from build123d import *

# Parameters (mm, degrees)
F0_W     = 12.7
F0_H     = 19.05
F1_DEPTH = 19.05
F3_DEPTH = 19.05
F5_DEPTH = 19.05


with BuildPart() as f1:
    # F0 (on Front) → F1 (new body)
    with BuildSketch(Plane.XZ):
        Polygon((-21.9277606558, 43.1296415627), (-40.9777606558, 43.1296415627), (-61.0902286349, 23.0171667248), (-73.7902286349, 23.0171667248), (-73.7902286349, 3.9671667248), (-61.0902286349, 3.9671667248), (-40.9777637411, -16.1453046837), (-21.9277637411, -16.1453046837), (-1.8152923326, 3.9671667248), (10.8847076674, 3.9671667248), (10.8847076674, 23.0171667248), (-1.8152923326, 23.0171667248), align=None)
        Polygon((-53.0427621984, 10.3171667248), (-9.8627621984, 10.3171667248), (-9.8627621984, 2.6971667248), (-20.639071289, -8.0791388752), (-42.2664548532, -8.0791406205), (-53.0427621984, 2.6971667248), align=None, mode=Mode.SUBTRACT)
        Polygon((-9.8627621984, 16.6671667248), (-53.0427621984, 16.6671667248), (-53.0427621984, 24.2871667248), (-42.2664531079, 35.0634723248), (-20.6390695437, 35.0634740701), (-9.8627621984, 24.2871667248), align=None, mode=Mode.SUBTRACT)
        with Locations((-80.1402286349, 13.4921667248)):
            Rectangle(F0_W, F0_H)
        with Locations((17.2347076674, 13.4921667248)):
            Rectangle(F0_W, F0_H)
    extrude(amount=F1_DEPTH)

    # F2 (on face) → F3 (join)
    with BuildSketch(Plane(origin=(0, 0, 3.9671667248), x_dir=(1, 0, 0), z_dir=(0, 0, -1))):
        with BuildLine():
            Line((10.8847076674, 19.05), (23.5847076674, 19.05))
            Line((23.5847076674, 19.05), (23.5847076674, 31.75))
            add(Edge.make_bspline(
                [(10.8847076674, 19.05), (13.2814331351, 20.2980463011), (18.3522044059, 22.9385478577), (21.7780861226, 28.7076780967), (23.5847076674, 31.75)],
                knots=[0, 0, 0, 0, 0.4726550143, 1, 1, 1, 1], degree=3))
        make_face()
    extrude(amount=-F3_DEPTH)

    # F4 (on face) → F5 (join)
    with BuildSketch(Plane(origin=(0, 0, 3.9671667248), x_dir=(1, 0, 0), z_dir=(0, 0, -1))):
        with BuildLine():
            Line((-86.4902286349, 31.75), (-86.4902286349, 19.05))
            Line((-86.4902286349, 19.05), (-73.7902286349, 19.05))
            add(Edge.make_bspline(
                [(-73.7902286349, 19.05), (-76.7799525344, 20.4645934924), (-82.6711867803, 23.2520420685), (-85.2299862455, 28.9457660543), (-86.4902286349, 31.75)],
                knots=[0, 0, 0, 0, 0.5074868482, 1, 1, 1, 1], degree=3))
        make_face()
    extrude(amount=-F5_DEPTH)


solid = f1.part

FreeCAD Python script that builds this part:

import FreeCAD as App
import Part
import Sketcher

V = App.Vector
Q = App.Units.Quantity


def add_polygon(sketch, points):
    """Adds a closed chain of lines whose ends are joined by coincident constraints."""
    first, n = sketch.GeometryCount, len(points)
    for a, b in zip(points, points[1:] + points[:1]):
        sketch.addGeometry(Part.LineSegment(App.Vector(*a, 0), App.Vector(*b, 0)), False)
    for i in range(n):
        sketch.addConstraint(Sketcher.Constraint("Coincident", first + i, 2, first + (i + 1) % n, 1))

doc = App.newDocument("Part")
params = doc.addObject("Spreadsheet::Sheet", "Params")
for row, (alias, value) in enumerate([
    ("sketch1_width", "1 in"),
    ("sketch1_width2", "1.7 in"),
    ("sketch1_height", "0.3 in"),
    ("sketch1_length", "0.6 in"),
    ("sketch1_width3", "0.75 in"),
    ("pad1_length", "0.75 in"),
    ("pad2_length", "0.75 in"),
    ("pad3_length", "0.75 in"),
], start=1):
    params.set(f"A{row}", alias)
    params.set(f"B{row}", "=" + value)
    params.setAlias(f"B{row}", alias)

body = doc.addObject("PartDesign::Body", "Body")

# Sketch on XZ plane
sketch1 = body.newObject("Sketcher::SketchObject", "Sketch")
sketch1.AttachmentSupport = (doc.getObject("XZ_Plane"), [""])
sketch1.MapMode = "FlatFace"
add_polygon(sketch1, [(-21.927761, 43.129642), (-40.977761, 43.129642), (-61.090229, 23.017167), (-86.490229, 23.017167), (-86.490229, 3.967167), (-61.090229, 3.967167), (-40.977764, -16.145305), (-21.927764, -16.145305), (-1.815292, 3.967167), (23.584708, 3.967167), (23.584708, 23.017167), (-1.815292, 23.017167)])  # lines 0-11
add_polygon(sketch1, [(-53.042762, 2.697167), (-53.042762, 10.317167), (-9.862762, 10.317167), (-9.862762, 2.697167), (-20.639071, -8.079139), (-42.266455, -8.079141)])  # lines 12-17
add_polygon(sketch1, [(-9.862762, 24.287167), (-9.862762, 16.667167), (-53.042762, 16.667167), (-53.042762, 24.287167), (-42.266453, 35.063472), (-20.63907, 35.063474)])  # lines 18-23
sketch1.addConstraint(Sketcher.Constraint("Horizontal", 0))
sketch1.addConstraint(Sketcher.Constraint("Horizontal", 2))
sketch1.addConstraint(Sketcher.Constraint("Vertical", 3))
sketch1.addConstraint(Sketcher.Constraint("Horizontal", 4))
sketch1.addConstraint(Sketcher.Constraint("Horizontal", 6))
sketch1.addConstraint(Sketcher.Constraint("Horizontal", 8))
sketch1.addConstraint(Sketcher.Constraint("Vertical", 9))
sketch1.addConstraint(Sketcher.Constraint("Horizontal", 10))
sketch1.addConstraint(Sketcher.Constraint("Vertical", 12))
sketch1.addConstraint(Sketcher.Constraint("Horizontal", 13))
sketch1.addConstraint(Sketcher.Constraint("Vertical", 14))
sketch1.addConstraint(Sketcher.Constraint("Horizontal", 16))
sketch1.addConstraint(Sketcher.Constraint("Vertical", 18))
sketch1.addConstraint(Sketcher.Constraint("Horizontal", 19))
sketch1.addConstraint(Sketcher.Constraint("Vertical", 20))
sketch1.addConstraint(Sketcher.Constraint("Horizontal", 22))
sketch1.addConstraint(Sketcher.Constraint("Perpendicular", 1, 5))
sketch1.addConstraint(Sketcher.Constraint("Perpendicular", 5, 7))
sketch1.addConstraint(Sketcher.Constraint("Perpendicular", 7, 11))
sketch1.addConstraint(Sketcher.Constraint("Perpendicular", 11, 15))
sketch1.addConstraint(Sketcher.Constraint("Perpendicular", 15, 17))
sketch1.addConstraint(Sketcher.Constraint("Perpendicular", 17, 21))
sketch1.addConstraint(Sketcher.Constraint("Perpendicular", 21, 23))
sketch1.addConstraint(Sketcher.Constraint("Horizontal", 4, 2, 7, 2))
sketch1.addConstraint(Sketcher.Constraint("Horizontal", 2, 2, 9, 2))
sketch1.addConstraint(Sketcher.Constraint("Horizontal", 14, 2, 17, 2))
sketch1.addConstraint(Sketcher.Constraint("Horizontal", 20, 2, 23, 2))
sketch1.addConstraint(Sketcher.Constraint("Vertical", 1, 2, 4, 2))
sketch1.addConstraint(Sketcher.Constraint("Vertical", 7, 2, 10, 2))
sketch1.addConstraint(Sketcher.Constraint("Vertical", 14, 2, 18, 2))
sketch1.addConstraint(Sketcher.Constraint("Vertical", 17, 2, 19, 2))
sketch1.addConstraint(Sketcher.Constraint("Vertical", 16, 2, 21, 2))
sketch1.addConstraint(Sketcher.Constraint("Vertical", 15, 2, 22, 2))
sketch1.addConstraint(Sketcher.Constraint("Equal", 0, 6))
sketch1.addConstraint(Sketcher.Constraint("Equal", 4, 8))
sketch1.addConstraint(Sketcher.Constraint("Equal", 6, 3))
sketch1.addConstraint(Sketcher.Constraint("Equal", 14, 18))
sketch1.addConstraint(Sketcher.Constraint("DistanceX", 2, 2, 2, 1, Q("1 in")))
sketch1.addConstraint(Sketcher.Constraint("DistanceX", 13, 1, 13, 2, Q("1.7 in")))
sketch1.addConstraint(Sketcher.Constraint("DistanceY", 12, 1, 12, 2, Q("0.3 in")))
sketch1.addConstraint(Sketcher.Constraint("Distance", 15, Q("0.6 in")))
sketch1.addConstraint(Sketcher.Constraint("DistanceX", 0, 2, 0, 1, Q("0.75 in")))
sketch1.addConstraint(Sketcher.Constraint("DistanceY", 12, 2, 1, 2, Q("0.5 in")))
sketch1.addConstraint(Sketcher.Constraint("DistanceY", 7, 2, 18, 2, Q("0.5 in")))
sketch1.addConstraint(Sketcher.Constraint("DistanceX", 12, 2, 5, 2, Q("0.4749999 in")))
sketch1.addConstraint(Sketcher.Constraint("Distance", 1, Q("28.44333 mm")))
sketch1.addConstraint(Sketcher.Constraint("DistanceX", 0, 2, -1, 1, Q("40.977761 mm")))
sketch1.addConstraint(Sketcher.Constraint("DistanceY", -1, 1, 0, 2, Q("43.129642 mm")))
sketch1.setExpression("Constraints[61]", "Params.sketch1_width")
sketch1.setExpression("Constraints[62]", "Params.sketch1_width2")
sketch1.setExpression("Constraints[63]", "Params.sketch1_height")
sketch1.setExpression("Constraints[64]", "Params.sketch1_length")
sketch1.setExpression("Constraints[65]", "Params.sketch1_width3")
pad1 = body.newObject("PartDesign::Pad", "Pad")
pad1.Profile = sketch1
pad1.setExpression("Length", "Params.pad1_length")

# Sketch on XY plane
sketch2 = body.newObject("Sketcher::SketchObject", "Sketch001")
sketch2.AttachmentSupport = (doc.getObject("XY_Plane"), [""])
sketch2.MapMode = "FlatFace"
sketch2.AttachmentOffset = App.Placement(V(0, 0, 3.967167), App.Rotation())
sketch2.addGeometry(Part.LineSegment(V(10.884708, -19.05, 0), V(23.584708, -19.05, 0)), False)
sketch2.addGeometry(Part.LineSegment(V(23.584708, -19.05, 0), V(23.584708, -31.75, 0)), False)
sketch2.addGeometry(Part.BSplineCurve([V(10.884708, -19.05, 0), V(13.281433, -20.298046, 0), V(18.352204, -22.938548, 0), V(21.778086, -28.707678, 0), V(23.584708, -31.75, 0)], [4, 1, 4], [0, 0.472655014, 1], False, 3, [1, 1, 1, 1, 1], False), False)
sketch2.addConstraint(Sketcher.Constraint("Block", 2))
sketch2.addConstraint(Sketcher.Constraint("Coincident", 0, 2, 1, 1))
sketch2.addConstraint(Sketcher.Constraint("Coincident", 1, 2, 2, 2))
sketch2.addConstraint(Sketcher.Constraint("Coincident", 2, 1, 0, 1))
sketch2.addConstraint(Sketcher.Constraint("Horizontal", 0))
sketch2.addConstraint(Sketcher.Constraint("Vertical", 1))
pad2 = body.newObject("PartDesign::Pad", "Pad001")
pad2.Profile = sketch2
pad2.setExpression("Length", "Params.pad2_length")

# Sketch on XY plane
sketch3 = body.newObject("Sketcher::SketchObject", "Sketch002")
sketch3.AttachmentSupport = (doc.getObject("XY_Plane"), [""])
sketch3.MapMode = "FlatFace"
sketch3.AttachmentOffset = App.Placement(V(0, 0, 3.967167), App.Rotation())
sketch3.addGeometry(Part.LineSegment(V(-86.490229, -31.75, 0), V(-86.490229, -19.05, 0)), False)
sketch3.addGeometry(Part.LineSegment(V(-86.490229, -19.05, 0), V(-73.790229, -19.05, 0)), False)
sketch3.addGeometry(Part.BSplineCurve([V(-73.790229, -19.05, 0), V(-76.779953, -20.464593, 0), V(-82.671187, -23.252042, 0), V(-85.229986, -28.945766, 0), V(-86.490229, -31.75, 0)], [4, 1, 4], [0, 0.507486848, 1], False, 3, [1, 1, 1, 1, 1], False), False)
sketch3.addConstraint(Sketcher.Constraint("Block", 2))
sketch3.addConstraint(Sketcher.Constraint("Coincident", 0, 2, 1, 1))
sketch3.addConstraint(Sketcher.Constraint("Coincident", 1, 2, 2, 1))
sketch3.addConstraint(Sketcher.Constraint("Coincident", 2, 2, 0, 1))
sketch3.addConstraint(Sketcher.Constraint("Vertical", 0))
sketch3.addConstraint(Sketcher.Constraint("Horizontal", 1))
pad3 = body.newObject("PartDesign::Pad", "Pad002")
pad3.Profile = sketch3
pad3.setExpression("Length", "Params.pad3_length")

doc.recompute()
